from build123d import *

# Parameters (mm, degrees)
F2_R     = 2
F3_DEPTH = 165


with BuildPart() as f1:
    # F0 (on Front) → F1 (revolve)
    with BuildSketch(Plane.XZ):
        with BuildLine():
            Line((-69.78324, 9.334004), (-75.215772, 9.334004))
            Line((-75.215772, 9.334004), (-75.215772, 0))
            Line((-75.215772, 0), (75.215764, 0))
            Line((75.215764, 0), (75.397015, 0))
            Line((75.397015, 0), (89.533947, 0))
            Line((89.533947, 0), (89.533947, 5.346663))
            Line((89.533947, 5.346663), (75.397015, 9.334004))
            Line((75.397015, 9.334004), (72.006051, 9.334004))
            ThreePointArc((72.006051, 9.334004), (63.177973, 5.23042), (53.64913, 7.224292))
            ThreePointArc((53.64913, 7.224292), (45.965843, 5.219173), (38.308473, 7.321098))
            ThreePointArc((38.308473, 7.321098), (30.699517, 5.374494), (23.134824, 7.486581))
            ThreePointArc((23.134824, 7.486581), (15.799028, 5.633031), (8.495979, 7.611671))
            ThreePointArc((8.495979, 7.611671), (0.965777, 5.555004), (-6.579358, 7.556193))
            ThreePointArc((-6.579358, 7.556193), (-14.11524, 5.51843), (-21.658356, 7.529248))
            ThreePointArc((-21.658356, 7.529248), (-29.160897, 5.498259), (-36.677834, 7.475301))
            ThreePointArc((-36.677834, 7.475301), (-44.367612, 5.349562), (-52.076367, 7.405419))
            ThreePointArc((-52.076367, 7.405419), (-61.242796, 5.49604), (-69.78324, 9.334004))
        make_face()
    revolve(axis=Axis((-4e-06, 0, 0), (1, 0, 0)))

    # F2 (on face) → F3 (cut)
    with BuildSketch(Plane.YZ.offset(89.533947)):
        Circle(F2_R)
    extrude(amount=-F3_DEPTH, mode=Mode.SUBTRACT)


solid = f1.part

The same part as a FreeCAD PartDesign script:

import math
import FreeCAD as App
import Part
import Sketcher

doc = App.newDocument("Part")
body = doc.addObject("PartDesign::Body", "Body")

sketch1 = doc.addObject("Sketcher::SketchObject", "Sketch")
body.addObject(sketch1)
sketch1.AttachmentSupport = (doc.XZ_Plane, [""])
sketch1.MapMode = "FlatFace"
sketch1.addGeometry([
    Part.LineSegment(App.Vector(-69.78324, 9.334004, 0), App.Vector(-75.215772, 9.334004, 0)),
    Part.LineSegment(App.Vector(-75.215772, 9.334004, 0), App.Vector(-75.215772, 0, 0)),
    Part.LineSegment(App.Vector(-75.215772, 0, 0), App.Vector(89.533947, 0, 0)),
    Part.LineSegment(App.Vector(89.533947, 0, 0), App.Vector(89.533947, 5.346663, 0)),
    Part.LineSegment(App.Vector(89.533947, 5.346663, 0), App.Vector(75.397015, 9.334004, 0)),
    Part.LineSegment(App.Vector(75.397015, 9.334004, 0), App.Vector(72.006051, 9.334004, 0)),
    Part.ArcOfCircle(Part.Circle(App.Vector(61.414914, 20.57106, 0), App.Vector(0, 0, 1), 15.44162), math.radians(-120.192878), math.radians(-46.694947)),
    Part.ArcOfCircle(Part.Circle(App.Vector(46.06272, 20.571064, 0), App.Vector(0, 0, 1), 15.352197), math.radians(-120.337352), math.radians(-60.385759)),
    Part.ArcOfCircle(Part.Circle(App.Vector(30.865249, 20.571056, 0), App.Vector(0, 0, 1), 15.197466), math.radians(-120.574976), math.radians(-60.674704)),
    Part.ArcOfCircle(Part.Circle(App.Vector(15.926675, 20.57106, 0), App.Vector(0, 0, 1), 14.938574), math.radians(-119.829235), math.radians(-61.149935)),
    Part.ArcOfCircle(Part.Circle(App.Vector(0.910517, 20.571061, 0), App.Vector(0, 0, 1), 15.016158), math.radians(-119.919828), math.radians(-59.658471)),
    Part.ArcOfCircle(Part.Circle(App.Vector(-14.142138, 20.571061, 0), App.Vector(0, 0, 1), 15.052655), math.radians(-119.955577), math.radians(-59.839657)),
    Part.ArcOfCircle(Part.Circle(App.Vector(-29.215036, 20.571061, 0), App.Vector(0, 0, 1), 15.072899), math.radians(-119.677246), math.radians(-59.911165)),
    Part.ArcOfCircle(Part.Circle(App.Vector(-44.436691, 20.571057, 0), App.Vector(0, 0, 1), 15.221651), math.radians(-120.125477), math.radians(-59.354485)),
    Part.ArcOfCircle(Part.Circle(App.Vector(-59.600865, 20.571063, 0), App.Vector(0, 0, 1), 15.164176), math.radians(-132.181057), math.radians(-60.250942)),
], False)
sketch1.addConstraint([
    Sketcher.Constraint("Coincident", 0, 2, 1, 1),
    Sketcher.Constraint("Coincident", 1, 2, 2, 1),
    Sketcher.Constraint("Coincident", 2, 2, 3, 1),
    Sketcher.Constraint("Coincident", 3, 2, 4, 1),
    Sketcher.Constraint("Coincident", 4, 2, 5, 1),
    Sketcher.Constraint("Coincident", 5, 2, 6, 2),
    Sketcher.Constraint("Coincident", 6, 1, 7, 2),
    Sketcher.Constraint("Coincident", 7, 1, 8, 2),
    Sketcher.Constraint("Coincident", 8, 1, 9, 2),
    Sketcher.Constraint("Coincident", 9, 1, 10, 2),
    Sketcher.Constraint("Coincident", 10, 1, 11, 2),
    Sketcher.Constraint("Coincident", 11, 1, 12, 2),
    Sketcher.Constraint("Coincident", 12, 1, 13, 2),
    Sketcher.Constraint("Coincident", 13, 1, 14, 2),
    Sketcher.Constraint("Coincident", 14, 1, 0, 1),
    Sketcher.Constraint("Horizontal", 0),
    Sketcher.Constraint("Vertical", 1),
    Sketcher.Constraint("Horizontal", 2),
    Sketcher.Constraint("Vertical", 3),
    Sketcher.Constraint("Horizontal", 5),
    Sketcher.Constraint("PointOnObject", 1, 2, -1),
    Sketcher.Constraint("Horizontal", 6, 3, 9, 3),
    Sketcher.Constraint("Horizontal", 9, 3, 10, 3),
    Sketcher.Constraint("Horizontal", 10, 3, 11, 3),
    Sketcher.Constraint("Horizontal", 11, 3, 12, 3),
    Sketcher.Constraint("Horizontal", 8, 3, 13, 3),
    Sketcher.Constraint("Horizontal", 12, 3, 14, 3),
    Sketcher.Constraint("Horizontal", 0, 2, 4, 2),
    Sketcher.Constraint("Radius", 12, 15.072899),
    Sketcher.Constraint("Radius", 6, 15.44162),
    Sketcher.Constraint("Radius", 10, 15.016158),
    Sketcher.Constraint("Radius", 13, 15.221651),
    Sketcher.Constraint("Radius", 7, 15.352197),
    Sketcher.Constraint("Radius", 8, 15.197466),
    Sketcher.Constraint("Radius", 9, 14.938574),
    Sketcher.Constraint("Radius", 11, 15.052655),
    Sketcher.Constraint("Radius", 14, 15.164176),
    Sketcher.Constraint("DistanceX", 0, 2, 0, 1, 5.432532),
    Sketcher.Constraint("DistanceX", 2, 1, 2, 2, 164.749719),
    Sketcher.Constraint("DistanceY", -1, 1, 12, 1, 7.475301),
    Sketcher.Constraint("DistanceY", 3, 2, 7, 3, 15.224401),
    Sketcher.Constraint("DistanceX", 6, 3, 4, 2, 13.982101),
    Sketcher.Constraint("DistanceX", 9, 3, 7, 1, 22.381798),
    Sketcher.Constraint("DistanceX", 12, 1, 12, 3, 7.462798),
    Sketcher.Constraint("DistanceX", 14, 3, 13, 1, 7.524498),
    Sketcher.Constraint("Distance", 4, 14.68849),
    Sketcher.Constraint("DistanceX", 5, 2, 5, 1, 3.390964),
    Sketcher.Constraint("DistanceY", 3, 1, 3, 2, 5.346663),
    Sketcher.Constraint("DistanceX", -1, 1, 7, 3, 46.06272),
    Sketcher.Constraint("DistanceX", -1, 1, 8, 3, 30.865249),
    Sketcher.Constraint("DistanceX", 13, 3, -1, 1, 44.436691),
    Sketcher.Constraint("DistanceX", 0, 2, -1, 1, 75.215772),
    Sketcher.Constraint("DistanceX", -1, 1, 9, 1, 8.495979),
    Sketcher.Constraint("DistanceX", 10, 1, -1, 1, 6.579358),
])
revolution = doc.addObject("PartDesign::Revolution", "Revolution")
body.addObject(revolution)
revolution.Profile = sketch1
revolution.ReferenceAxis = (sketch1, ["H_Axis"])
revolution.Angle = 360

sketch2 = doc.addObject("Sketcher::SketchObject", "Sketch001")
body.addObject(sketch2)
sketch2.AttachmentSupport = (doc.YZ_Plane, [""])
sketch2.MapMode = "FlatFace"
sketch2.AttachmentOffset = App.Placement(App.Vector(0, 0, 89.533947), App.Rotation())
sketch2.addGeometry(Part.Circle(App.Vector(0, 0, 0), App.Vector(0, 0, 1), 2), False)
sketch2.addConstraint([
    Sketcher.Constraint("Coincident", 0, 3, -1, 1),
    Sketcher.Constraint("Diameter", 0, 4.0),
])
pocket1 = doc.addObject("PartDesign::Pocket", "Pocket")
body.addObject(pocket1)
pocket1.Profile = sketch2
pocket1.Length = 165

doc.recompute()
